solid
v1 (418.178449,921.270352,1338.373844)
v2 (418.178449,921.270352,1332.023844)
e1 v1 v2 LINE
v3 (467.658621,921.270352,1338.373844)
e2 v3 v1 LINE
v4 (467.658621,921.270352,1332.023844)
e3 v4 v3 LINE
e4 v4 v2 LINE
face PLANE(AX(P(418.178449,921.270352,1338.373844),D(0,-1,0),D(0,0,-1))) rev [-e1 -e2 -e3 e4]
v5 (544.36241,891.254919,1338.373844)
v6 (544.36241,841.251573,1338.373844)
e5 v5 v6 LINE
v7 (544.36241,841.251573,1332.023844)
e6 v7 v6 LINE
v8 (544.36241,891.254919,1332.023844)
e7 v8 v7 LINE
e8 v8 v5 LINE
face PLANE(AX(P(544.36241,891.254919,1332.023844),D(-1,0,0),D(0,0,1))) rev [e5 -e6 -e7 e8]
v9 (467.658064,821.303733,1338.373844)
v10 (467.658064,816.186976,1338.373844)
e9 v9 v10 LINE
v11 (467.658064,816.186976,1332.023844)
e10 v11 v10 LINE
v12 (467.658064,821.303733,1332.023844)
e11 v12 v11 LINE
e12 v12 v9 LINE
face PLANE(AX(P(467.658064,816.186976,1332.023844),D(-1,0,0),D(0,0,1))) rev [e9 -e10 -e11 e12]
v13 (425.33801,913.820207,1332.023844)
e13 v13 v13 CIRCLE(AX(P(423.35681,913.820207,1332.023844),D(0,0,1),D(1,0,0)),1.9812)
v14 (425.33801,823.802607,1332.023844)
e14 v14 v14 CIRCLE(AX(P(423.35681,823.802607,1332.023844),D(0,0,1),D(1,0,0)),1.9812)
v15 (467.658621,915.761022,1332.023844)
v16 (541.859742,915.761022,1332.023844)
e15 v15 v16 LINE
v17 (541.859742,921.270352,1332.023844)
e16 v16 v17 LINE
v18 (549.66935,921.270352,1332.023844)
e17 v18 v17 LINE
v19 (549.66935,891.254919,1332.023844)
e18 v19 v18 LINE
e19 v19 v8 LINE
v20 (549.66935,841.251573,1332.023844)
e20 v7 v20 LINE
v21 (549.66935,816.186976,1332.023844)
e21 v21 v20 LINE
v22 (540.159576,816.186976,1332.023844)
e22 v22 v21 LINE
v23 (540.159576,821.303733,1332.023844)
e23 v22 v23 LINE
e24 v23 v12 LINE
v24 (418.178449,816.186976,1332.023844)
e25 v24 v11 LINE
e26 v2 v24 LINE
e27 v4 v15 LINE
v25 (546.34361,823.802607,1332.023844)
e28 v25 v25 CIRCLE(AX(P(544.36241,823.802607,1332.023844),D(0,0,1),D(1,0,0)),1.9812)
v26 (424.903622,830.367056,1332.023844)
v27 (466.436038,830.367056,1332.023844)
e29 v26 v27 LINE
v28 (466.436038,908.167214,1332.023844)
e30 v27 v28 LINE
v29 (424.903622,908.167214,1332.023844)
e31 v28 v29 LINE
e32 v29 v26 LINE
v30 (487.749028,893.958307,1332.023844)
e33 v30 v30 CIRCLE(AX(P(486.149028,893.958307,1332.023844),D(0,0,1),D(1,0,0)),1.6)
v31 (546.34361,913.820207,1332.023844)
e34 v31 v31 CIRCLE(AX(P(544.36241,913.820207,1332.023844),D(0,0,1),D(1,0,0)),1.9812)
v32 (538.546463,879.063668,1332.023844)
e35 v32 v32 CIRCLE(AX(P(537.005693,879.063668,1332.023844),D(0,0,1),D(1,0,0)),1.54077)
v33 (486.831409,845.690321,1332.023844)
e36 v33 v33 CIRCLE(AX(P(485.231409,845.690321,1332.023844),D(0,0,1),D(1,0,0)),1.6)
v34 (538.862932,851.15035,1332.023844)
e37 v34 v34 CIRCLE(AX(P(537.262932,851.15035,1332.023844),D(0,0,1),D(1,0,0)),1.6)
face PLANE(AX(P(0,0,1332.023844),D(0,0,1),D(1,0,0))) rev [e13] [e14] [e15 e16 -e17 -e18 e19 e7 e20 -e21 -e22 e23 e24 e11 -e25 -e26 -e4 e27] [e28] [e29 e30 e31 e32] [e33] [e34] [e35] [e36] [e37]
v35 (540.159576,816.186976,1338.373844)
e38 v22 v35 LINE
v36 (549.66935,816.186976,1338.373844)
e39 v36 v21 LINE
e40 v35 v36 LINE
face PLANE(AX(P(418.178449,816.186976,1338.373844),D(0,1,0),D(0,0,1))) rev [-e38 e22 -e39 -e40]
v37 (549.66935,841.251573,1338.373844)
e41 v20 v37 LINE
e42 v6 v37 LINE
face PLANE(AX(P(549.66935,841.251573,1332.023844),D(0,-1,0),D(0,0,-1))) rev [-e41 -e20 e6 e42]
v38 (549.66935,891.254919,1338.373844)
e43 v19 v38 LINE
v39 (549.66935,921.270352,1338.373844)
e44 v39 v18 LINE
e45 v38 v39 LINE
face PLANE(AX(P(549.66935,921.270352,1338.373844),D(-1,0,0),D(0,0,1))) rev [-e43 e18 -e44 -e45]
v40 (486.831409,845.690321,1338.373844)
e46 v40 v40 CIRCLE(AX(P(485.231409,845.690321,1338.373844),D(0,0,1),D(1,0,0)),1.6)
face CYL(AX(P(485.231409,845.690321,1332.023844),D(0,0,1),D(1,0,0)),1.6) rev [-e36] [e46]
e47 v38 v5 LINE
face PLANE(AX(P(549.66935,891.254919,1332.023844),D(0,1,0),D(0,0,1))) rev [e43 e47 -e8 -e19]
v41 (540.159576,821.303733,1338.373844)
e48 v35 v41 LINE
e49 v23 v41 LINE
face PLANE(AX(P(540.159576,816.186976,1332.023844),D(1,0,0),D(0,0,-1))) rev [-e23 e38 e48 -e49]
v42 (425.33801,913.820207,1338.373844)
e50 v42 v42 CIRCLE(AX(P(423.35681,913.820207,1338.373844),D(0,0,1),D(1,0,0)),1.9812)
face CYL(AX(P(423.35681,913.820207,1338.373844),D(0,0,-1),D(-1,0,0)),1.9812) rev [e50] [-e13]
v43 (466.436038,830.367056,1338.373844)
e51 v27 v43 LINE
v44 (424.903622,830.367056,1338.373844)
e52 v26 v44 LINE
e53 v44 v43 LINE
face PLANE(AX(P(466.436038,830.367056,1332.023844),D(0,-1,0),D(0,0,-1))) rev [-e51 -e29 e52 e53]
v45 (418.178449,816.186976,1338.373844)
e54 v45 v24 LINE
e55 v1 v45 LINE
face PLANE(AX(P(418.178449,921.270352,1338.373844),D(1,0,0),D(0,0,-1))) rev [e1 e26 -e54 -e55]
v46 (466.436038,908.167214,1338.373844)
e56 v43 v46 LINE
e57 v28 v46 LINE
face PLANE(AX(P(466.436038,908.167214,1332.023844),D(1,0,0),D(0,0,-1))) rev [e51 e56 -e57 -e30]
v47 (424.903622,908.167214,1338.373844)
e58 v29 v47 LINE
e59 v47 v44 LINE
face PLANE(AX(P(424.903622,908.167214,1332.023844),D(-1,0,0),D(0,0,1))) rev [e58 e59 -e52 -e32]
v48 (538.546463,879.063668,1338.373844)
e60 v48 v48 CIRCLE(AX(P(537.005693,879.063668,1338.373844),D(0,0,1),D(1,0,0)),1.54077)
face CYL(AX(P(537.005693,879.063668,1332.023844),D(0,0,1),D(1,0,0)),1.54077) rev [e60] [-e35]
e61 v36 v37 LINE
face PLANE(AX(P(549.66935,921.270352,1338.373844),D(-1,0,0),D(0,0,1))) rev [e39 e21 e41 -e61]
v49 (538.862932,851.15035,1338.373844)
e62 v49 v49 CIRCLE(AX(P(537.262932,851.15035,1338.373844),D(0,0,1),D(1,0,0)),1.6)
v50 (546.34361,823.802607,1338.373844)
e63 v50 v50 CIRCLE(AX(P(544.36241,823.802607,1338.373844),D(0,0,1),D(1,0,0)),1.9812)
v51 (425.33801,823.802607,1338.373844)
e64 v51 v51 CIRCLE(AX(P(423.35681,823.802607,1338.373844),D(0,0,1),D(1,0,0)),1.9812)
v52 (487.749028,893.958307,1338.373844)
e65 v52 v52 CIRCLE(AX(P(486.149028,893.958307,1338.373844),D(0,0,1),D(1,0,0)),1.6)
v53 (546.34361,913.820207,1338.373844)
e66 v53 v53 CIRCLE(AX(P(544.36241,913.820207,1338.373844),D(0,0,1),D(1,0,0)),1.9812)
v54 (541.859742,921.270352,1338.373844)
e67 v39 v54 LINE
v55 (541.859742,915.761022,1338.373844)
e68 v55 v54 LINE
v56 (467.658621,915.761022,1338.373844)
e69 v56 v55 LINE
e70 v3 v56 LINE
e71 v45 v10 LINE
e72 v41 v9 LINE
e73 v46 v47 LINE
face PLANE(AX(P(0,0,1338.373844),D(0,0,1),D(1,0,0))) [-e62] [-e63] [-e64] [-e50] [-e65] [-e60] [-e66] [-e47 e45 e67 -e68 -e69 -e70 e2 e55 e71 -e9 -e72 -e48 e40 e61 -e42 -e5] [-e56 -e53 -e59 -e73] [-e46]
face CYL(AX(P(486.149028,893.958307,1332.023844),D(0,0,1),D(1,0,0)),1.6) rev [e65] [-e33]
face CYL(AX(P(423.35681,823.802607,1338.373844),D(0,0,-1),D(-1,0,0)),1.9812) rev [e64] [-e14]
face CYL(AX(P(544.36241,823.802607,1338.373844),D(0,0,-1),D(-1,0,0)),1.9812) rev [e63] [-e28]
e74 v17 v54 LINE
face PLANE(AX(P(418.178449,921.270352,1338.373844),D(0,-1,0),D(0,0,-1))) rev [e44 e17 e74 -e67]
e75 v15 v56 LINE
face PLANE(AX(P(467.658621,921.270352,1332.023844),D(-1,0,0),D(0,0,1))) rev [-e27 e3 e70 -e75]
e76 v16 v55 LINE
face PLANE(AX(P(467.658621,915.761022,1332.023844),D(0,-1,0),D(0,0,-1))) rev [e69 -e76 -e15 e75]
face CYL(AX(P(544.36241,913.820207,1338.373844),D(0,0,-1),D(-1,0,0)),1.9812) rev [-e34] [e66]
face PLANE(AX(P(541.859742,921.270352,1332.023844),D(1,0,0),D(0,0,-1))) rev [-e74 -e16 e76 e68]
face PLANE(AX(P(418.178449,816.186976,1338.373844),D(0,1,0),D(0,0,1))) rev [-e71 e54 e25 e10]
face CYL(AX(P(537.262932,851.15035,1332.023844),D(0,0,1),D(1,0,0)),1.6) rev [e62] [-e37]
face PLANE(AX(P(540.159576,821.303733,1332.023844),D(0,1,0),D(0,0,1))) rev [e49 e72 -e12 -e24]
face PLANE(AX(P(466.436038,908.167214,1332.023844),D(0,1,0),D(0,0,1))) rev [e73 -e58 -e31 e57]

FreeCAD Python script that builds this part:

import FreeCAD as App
import Part
import Sketcher
Q = App.Units.Quantity


def add_polygon(sketch, points):
    """Adds a closed chain of lines whose ends are joined by coincident constraints."""
    first, n = sketch.GeometryCount, len(points)
    for a, b in zip(points, points[1:] + points[:1]):
        sketch.addGeometry(Part.LineSegment(App.Vector(*a, 0), App.Vector(*b, 0)), False)
    for i in range(n):
        sketch.addConstraint(Sketcher.Constraint("Coincident", first + i, 2, first + (i + 1) % n, 1))

doc = App.newDocument("Part")
body = doc.addObject("PartDesign::Body", "Body")

sketch1 = doc.addObject("Sketcher::SketchObject", "Sketch")
body.addObject(sketch1)
sketch1.AttachmentSupport = (doc.XY_Plane, [""])
sketch1.MapMode = "FlatFace"
sketch1.AttachmentOffset = App.Placement(App.Vector(0, 0, 1332.023844), App.Rotation())
add_polygon(sketch1, [(418.2, 921.3), (418.2, 816.2), (549.7, 816.2), (549.7, 921.3)])
sketch1.addGeometry(Part.Circle(App.Vector(423.4, 823.8, 0), App.Vector(0, 0, 1), 2), False)
sketch1.addGeometry(Part.Circle(App.Vector(544.4, 823.8, 0), App.Vector(0, 0, 1), 2), False)
sketch1.addGeometry(Part.Circle(App.Vector(423.4, 913.8, 0), App.Vector(0, 0, 1), 2), False)
sketch1.addGeometry(Part.Circle(App.Vector(544.4, 913.8, 0), App.Vector(0, 0, 1), 2), False)
sketch1.addConstraint([
    Sketcher.Constraint("Vertical", 0),
    Sketcher.Constraint("Horizontal", 1),
    Sketcher.Constraint("Vertical", 2),
    Sketcher.Constraint("Horizontal", 3),
    Sketcher.Constraint("Equal", 4, 5),
    Sketcher.Constraint("Equal", 5, 6),
    Sketcher.Constraint("Equal", 6, 7),
    Sketcher.Constraint("Horizontal", 4, 3, 5, 3),
    Sketcher.Constraint("Horizontal", 6, 3, 7, 3),
    Sketcher.Constraint("Vertical", 4, 3, 6, 3),
    Sketcher.Constraint("Vertical", 5, 3, 7, 3),
    Sketcher.Constraint("Diameter", 4, Q("0.156 in")),
    Sketcher.Constraint("DistanceX", 4, 3, 5, 3, Q("4.764 in")),
    Sketcher.Constraint("DistanceY", 4, 3, 6, 3, Q("3.544 in")),
    Sketcher.Constraint("DistanceX", 1, 1, 1, 2, 131.490901),
    Sketcher.Constraint("DistanceY", 0, 2, 0, 1, 105.083376),
    Sketcher.Constraint("DistanceX", -1, 1, 4, 3, 423.35681),
    Sketcher.Constraint("DistanceX", -1, 1, 0, 2, 418.178449),
    Sketcher.Constraint("DistanceY", -1, 1, 2, 2, 921.270352),
    Sketcher.Constraint("DistanceY", 0, 2, 4, 3, 7.615631),
])
pad1 = doc.addObject("PartDesign::Pad", "Pad")
body.addObject(pad1)
pad1.Profile = sketch1
pad1.Length = Q("0.25 in")

sketch2 = doc.addObject("Sketcher::SketchObject", "Sketch001")
body.addObject(sketch2)
sketch2.AttachmentSupport = (doc.XY_Plane, [""])
sketch2.MapMode = "FlatFace"
sketch2.AttachmentOffset = App.Placement(App.Vector(0, 0, 1338.373844), App.Rotation())
sketch2.addGeometry([
    Part.Circle(App.Vector(486.1, 894, 0), App.Vector(0, 0, 1), 1.6),
    Part.Circle(App.Vector(537, 879.1, 0), App.Vector(0, 0, 1), 1.5),
    Part.Circle(App.Vector(537.3, 851.2, 0), App.Vector(0, 0, 1), 1.6),
    Part.Circle(App.Vector(485.2, 845.7, 0), App.Vector(0, 0, 1), 1.6),
], False)
sketch2.addConstraint([
    Sketcher.Constraint("Equal", 0, 2),
    Sketcher.Constraint("Equal", 2, 3),
    Sketcher.Constraint("Diameter", 0, 3.2),
    Sketcher.Constraint("Diameter", 1, 3.08154),
    Sketcher.Constraint("DistanceX", -1, 1, 2, 3, 537.262932),
    Sketcher.Constraint("DistanceY", -1, 1, 2, 3, 851.15035),
    Sketcher.Constraint("DistanceX", -1, 1, 3, 3, 485.231409),
    Sketcher.Constraint("DistanceY", -1, 1, 3, 3, 845.690321),
    Sketcher.Constraint("DistanceY", 1, 3, 0, 3, 14.89464),
    Sketcher.Constraint("DistanceX", 1, 3, 2, 3, 0.257239),
    Sketcher.Constraint("DistanceX", 3, 3, 0, 3, 0.917619),
    Sketcher.Constraint("DistanceY", -1, 1, 0, 3, 893.958307),
])
pocket1 = doc.addObject("PartDesign::Pocket", "Pocket")
body.addObject(pocket1)
pocket1.Profile = sketch2
pocket1.Length = Q("0.25 in")

sketch3 = doc.addObject("Sketcher::SketchObject", "Sketch002")
body.addObject(sketch3)
sketch3.AttachmentSupport = (doc.XY_Plane, [""])
sketch3.MapMode = "FlatFace"
sketch3.AttachmentOffset = App.Placement(App.Vector(0, 0, 1338.373844), App.Rotation())
add_polygon(sketch3, [(425, 908), (425, 830), (466, 830), (466, 908)])
sketch3.addConstraint([
    Sketcher.Constraint("Vertical", 0),
    Sketcher.Constraint("Horizontal", 1),
    Sketcher.Constraint("Vertical", 2),
    Sketcher.Constraint("Horizontal", 3),
    Sketcher.Constraint("DistanceX", 1, 1, 1, 2, 41.532415),
    Sketcher.Constraint("DistanceY", 0, 2, 0, 1, 77.800158),
    Sketcher.Constraint("DistanceX", -1, 1, 0, 2, 424.903622),
    Sketcher.Constraint("DistanceY", -1, 1, 0, 2, 830.367056),
])
pocket2 = doc.addObject("PartDesign::Pocket", "Pocket001")
body.addObject(pocket2)
pocket2.Profile = sketch3
pocket2.Length = Q("0.25 in")

sketch4 = doc.addObject("Sketcher::SketchObject", "Sketch003")
body.addObject(sketch4)
sketch4.AttachmentSupport = (doc.XY_Plane, [""])
sketch4.MapMode = "FlatFace"
sketch4.AttachmentOffset = App.Placement(App.Vector(0, 0, 1338.373844), App.Rotation())
add_polygon(sketch4, [(468, 921), (468, 916), (542, 916), (542, 921)])
add_polygon(sketch4, [(468, 821), (468, 816), (540, 816), (540, 821)])
add_polygon(sketch4, [(544, 891), (544, 841), (550, 841), (550, 891)])
sketch4.addConstraint([
    Sketcher.Constraint("Vertical", 0),
    Sketcher.Constraint("Horizontal", 1),
    Sketcher.Constraint("Vertical", 2),
    Sketcher.Constraint("Horizontal", 3),
    Sketcher.Constraint("Vertical", 4),
    Sketcher.Constraint("Horizontal", 5),
    Sketcher.Constraint("Vertical", 6),
    Sketcher.Constraint("Horizontal", 7),
    Sketcher.Constraint("Vertical", 8),
    Sketcher.Constraint("Horizontal", 9),
    Sketcher.Constraint("Vertical", 10),
    Sketcher.Constraint("Horizontal", 11),
    Sketcher.Constraint("DistanceX", 1, 1, 1, 2, 74.201121),
    Sketcher.Constraint("DistanceX", 5, 1, 5, 2, 72.501512),
    Sketcher.Constraint("DistanceX", 9, 1, 9, 2, 5.306941),
    Sketcher.Constraint("DistanceY", 0, 2, 0, 1, 5.509329),
    Sketcher.Constraint("DistanceY", 4, 2, 4, 1, 5.116757),
    Sketcher.Constraint("DistanceY", 8, 2, 8, 1, 50.003346),
    Sketcher.Constraint("DistanceX", -1, 1, 0, 2, 467.658621),
    Sketcher.Constraint("DistanceY", -1, 1, 2, 2, 921.270352),
    Sketcher.Constraint("DistanceX", -1, 1, 8, 2, 544.36241),
    Sketcher.Constraint("DistanceY", -1, 1, 10, 2, 891.254919),
    Sketcher.Constraint("DistanceX", 4, 2, 1, 2, 74.201678),
    Sketcher.Constraint("DistanceY", 6, 2, 1, 2, 94.457289),
])
pocket3 = doc.addObject("PartDesign::Pocket", "Pocket002")
body.addObject(pocket3)
pocket3.Profile = sketch4
pocket3.Length = Q("0.25 in")

doc.recompute()
